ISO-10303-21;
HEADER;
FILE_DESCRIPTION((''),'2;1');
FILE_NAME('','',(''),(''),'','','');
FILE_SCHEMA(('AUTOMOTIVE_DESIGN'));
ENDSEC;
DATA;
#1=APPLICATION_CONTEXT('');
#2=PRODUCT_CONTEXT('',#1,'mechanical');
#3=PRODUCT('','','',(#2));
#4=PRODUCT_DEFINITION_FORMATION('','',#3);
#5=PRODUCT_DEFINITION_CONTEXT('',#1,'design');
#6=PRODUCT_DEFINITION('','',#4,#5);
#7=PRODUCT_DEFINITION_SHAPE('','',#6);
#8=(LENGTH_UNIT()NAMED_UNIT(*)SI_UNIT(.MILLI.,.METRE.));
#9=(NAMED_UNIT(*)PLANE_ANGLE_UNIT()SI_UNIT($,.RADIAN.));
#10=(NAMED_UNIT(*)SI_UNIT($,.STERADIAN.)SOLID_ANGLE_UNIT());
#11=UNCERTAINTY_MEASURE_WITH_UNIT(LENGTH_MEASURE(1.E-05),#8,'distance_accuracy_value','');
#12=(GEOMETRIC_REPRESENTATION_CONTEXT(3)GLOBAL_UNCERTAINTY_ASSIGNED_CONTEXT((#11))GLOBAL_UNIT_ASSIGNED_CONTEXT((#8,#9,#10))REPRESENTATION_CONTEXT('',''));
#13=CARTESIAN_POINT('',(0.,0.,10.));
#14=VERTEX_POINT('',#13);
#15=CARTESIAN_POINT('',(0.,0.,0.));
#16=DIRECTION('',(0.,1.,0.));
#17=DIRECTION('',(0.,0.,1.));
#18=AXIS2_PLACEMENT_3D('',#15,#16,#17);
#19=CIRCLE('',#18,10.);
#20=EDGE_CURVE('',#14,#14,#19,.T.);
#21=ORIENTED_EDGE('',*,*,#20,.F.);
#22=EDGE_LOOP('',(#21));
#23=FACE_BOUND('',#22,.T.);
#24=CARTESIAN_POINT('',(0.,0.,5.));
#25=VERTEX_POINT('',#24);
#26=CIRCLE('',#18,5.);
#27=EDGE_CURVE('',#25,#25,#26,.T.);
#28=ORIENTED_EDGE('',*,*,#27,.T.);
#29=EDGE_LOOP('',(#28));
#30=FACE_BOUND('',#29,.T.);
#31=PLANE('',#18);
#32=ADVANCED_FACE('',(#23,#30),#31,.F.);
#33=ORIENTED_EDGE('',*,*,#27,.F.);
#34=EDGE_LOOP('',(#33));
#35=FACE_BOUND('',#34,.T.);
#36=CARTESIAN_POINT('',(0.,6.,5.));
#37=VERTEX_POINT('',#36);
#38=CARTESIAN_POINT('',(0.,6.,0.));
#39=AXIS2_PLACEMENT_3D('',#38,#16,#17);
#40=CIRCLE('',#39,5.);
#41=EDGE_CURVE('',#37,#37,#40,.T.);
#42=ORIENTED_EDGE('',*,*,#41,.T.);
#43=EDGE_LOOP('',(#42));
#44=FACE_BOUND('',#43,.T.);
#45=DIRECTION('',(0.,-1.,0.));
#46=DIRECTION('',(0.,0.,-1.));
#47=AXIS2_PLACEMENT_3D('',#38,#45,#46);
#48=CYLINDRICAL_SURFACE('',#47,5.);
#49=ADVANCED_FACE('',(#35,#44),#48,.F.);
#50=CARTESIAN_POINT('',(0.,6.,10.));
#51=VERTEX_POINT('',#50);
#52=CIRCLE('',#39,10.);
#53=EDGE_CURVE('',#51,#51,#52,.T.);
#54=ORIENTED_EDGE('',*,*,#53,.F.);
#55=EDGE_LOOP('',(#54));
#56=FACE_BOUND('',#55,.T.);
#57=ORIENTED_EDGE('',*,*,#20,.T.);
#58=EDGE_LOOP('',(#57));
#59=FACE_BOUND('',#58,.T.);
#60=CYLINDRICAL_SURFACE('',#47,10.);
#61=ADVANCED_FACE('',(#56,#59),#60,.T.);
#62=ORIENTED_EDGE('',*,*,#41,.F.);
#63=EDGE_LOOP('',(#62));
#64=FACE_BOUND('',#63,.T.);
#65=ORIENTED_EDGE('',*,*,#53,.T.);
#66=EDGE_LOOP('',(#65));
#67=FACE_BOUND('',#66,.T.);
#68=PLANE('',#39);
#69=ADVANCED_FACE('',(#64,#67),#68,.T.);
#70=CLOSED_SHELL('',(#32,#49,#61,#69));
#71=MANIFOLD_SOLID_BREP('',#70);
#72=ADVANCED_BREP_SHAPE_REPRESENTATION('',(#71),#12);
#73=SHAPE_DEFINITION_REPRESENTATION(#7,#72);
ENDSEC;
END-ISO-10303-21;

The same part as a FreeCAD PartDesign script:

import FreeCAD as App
import Part
import Sketcher

V = App.Vector

doc = App.newDocument("Part")
params = doc.addObject("Spreadsheet::Sheet", "Params")
for row, (alias, value) in enumerate([
    ("sketch1_diameter", "20 mm"),
    ("sketch1_diameter2", "10 mm"),
    ("pad1_length", "6 mm"),
], start=1):
    params.set(f"A{row}", alias)
    params.set(f"B{row}", "=" + value)
    params.setAlias(f"B{row}", alias)

body = doc.addObject("PartDesign::Body", "Body")

# Sketch on XZ plane
sketch1 = doc.addObject("Sketcher::SketchObject", "Sketch")
body.addObject(sketch1)
sketch1.AttachmentSupport = (doc.XZ_Plane, [""])
sketch1.MapMode = "FlatFace"
sketch1.addGeometry([
    Part.Circle(V(0, 0, 0), V(0, 0, 1), 10),
    Part.Circle(V(0, 0, 0), V(0, 0, 1), 5),
], False)
sketch1.addConstraint([
    Sketcher.Constraint("Coincident", 0, 3, -1, 1),
    Sketcher.Constraint("Coincident", 1, 3, -1, 1),
    Sketcher.Constraint("Diameter", 0, 20.0),
    Sketcher.Constraint("Diameter", 1, 10.0),
])
sketch1.setExpression("Constraints[2]", "Params.sketch1_diameter")
sketch1.setExpression("Constraints[3]", "Params.sketch1_diameter2")
pad1 = doc.addObject("PartDesign::Pad", "Pad")
body.addObject(pad1)
pad1.Profile = sketch1
pad1.setExpression("Length", "Params.pad1_length")
pad1.Reversed = True

doc.recompute()
